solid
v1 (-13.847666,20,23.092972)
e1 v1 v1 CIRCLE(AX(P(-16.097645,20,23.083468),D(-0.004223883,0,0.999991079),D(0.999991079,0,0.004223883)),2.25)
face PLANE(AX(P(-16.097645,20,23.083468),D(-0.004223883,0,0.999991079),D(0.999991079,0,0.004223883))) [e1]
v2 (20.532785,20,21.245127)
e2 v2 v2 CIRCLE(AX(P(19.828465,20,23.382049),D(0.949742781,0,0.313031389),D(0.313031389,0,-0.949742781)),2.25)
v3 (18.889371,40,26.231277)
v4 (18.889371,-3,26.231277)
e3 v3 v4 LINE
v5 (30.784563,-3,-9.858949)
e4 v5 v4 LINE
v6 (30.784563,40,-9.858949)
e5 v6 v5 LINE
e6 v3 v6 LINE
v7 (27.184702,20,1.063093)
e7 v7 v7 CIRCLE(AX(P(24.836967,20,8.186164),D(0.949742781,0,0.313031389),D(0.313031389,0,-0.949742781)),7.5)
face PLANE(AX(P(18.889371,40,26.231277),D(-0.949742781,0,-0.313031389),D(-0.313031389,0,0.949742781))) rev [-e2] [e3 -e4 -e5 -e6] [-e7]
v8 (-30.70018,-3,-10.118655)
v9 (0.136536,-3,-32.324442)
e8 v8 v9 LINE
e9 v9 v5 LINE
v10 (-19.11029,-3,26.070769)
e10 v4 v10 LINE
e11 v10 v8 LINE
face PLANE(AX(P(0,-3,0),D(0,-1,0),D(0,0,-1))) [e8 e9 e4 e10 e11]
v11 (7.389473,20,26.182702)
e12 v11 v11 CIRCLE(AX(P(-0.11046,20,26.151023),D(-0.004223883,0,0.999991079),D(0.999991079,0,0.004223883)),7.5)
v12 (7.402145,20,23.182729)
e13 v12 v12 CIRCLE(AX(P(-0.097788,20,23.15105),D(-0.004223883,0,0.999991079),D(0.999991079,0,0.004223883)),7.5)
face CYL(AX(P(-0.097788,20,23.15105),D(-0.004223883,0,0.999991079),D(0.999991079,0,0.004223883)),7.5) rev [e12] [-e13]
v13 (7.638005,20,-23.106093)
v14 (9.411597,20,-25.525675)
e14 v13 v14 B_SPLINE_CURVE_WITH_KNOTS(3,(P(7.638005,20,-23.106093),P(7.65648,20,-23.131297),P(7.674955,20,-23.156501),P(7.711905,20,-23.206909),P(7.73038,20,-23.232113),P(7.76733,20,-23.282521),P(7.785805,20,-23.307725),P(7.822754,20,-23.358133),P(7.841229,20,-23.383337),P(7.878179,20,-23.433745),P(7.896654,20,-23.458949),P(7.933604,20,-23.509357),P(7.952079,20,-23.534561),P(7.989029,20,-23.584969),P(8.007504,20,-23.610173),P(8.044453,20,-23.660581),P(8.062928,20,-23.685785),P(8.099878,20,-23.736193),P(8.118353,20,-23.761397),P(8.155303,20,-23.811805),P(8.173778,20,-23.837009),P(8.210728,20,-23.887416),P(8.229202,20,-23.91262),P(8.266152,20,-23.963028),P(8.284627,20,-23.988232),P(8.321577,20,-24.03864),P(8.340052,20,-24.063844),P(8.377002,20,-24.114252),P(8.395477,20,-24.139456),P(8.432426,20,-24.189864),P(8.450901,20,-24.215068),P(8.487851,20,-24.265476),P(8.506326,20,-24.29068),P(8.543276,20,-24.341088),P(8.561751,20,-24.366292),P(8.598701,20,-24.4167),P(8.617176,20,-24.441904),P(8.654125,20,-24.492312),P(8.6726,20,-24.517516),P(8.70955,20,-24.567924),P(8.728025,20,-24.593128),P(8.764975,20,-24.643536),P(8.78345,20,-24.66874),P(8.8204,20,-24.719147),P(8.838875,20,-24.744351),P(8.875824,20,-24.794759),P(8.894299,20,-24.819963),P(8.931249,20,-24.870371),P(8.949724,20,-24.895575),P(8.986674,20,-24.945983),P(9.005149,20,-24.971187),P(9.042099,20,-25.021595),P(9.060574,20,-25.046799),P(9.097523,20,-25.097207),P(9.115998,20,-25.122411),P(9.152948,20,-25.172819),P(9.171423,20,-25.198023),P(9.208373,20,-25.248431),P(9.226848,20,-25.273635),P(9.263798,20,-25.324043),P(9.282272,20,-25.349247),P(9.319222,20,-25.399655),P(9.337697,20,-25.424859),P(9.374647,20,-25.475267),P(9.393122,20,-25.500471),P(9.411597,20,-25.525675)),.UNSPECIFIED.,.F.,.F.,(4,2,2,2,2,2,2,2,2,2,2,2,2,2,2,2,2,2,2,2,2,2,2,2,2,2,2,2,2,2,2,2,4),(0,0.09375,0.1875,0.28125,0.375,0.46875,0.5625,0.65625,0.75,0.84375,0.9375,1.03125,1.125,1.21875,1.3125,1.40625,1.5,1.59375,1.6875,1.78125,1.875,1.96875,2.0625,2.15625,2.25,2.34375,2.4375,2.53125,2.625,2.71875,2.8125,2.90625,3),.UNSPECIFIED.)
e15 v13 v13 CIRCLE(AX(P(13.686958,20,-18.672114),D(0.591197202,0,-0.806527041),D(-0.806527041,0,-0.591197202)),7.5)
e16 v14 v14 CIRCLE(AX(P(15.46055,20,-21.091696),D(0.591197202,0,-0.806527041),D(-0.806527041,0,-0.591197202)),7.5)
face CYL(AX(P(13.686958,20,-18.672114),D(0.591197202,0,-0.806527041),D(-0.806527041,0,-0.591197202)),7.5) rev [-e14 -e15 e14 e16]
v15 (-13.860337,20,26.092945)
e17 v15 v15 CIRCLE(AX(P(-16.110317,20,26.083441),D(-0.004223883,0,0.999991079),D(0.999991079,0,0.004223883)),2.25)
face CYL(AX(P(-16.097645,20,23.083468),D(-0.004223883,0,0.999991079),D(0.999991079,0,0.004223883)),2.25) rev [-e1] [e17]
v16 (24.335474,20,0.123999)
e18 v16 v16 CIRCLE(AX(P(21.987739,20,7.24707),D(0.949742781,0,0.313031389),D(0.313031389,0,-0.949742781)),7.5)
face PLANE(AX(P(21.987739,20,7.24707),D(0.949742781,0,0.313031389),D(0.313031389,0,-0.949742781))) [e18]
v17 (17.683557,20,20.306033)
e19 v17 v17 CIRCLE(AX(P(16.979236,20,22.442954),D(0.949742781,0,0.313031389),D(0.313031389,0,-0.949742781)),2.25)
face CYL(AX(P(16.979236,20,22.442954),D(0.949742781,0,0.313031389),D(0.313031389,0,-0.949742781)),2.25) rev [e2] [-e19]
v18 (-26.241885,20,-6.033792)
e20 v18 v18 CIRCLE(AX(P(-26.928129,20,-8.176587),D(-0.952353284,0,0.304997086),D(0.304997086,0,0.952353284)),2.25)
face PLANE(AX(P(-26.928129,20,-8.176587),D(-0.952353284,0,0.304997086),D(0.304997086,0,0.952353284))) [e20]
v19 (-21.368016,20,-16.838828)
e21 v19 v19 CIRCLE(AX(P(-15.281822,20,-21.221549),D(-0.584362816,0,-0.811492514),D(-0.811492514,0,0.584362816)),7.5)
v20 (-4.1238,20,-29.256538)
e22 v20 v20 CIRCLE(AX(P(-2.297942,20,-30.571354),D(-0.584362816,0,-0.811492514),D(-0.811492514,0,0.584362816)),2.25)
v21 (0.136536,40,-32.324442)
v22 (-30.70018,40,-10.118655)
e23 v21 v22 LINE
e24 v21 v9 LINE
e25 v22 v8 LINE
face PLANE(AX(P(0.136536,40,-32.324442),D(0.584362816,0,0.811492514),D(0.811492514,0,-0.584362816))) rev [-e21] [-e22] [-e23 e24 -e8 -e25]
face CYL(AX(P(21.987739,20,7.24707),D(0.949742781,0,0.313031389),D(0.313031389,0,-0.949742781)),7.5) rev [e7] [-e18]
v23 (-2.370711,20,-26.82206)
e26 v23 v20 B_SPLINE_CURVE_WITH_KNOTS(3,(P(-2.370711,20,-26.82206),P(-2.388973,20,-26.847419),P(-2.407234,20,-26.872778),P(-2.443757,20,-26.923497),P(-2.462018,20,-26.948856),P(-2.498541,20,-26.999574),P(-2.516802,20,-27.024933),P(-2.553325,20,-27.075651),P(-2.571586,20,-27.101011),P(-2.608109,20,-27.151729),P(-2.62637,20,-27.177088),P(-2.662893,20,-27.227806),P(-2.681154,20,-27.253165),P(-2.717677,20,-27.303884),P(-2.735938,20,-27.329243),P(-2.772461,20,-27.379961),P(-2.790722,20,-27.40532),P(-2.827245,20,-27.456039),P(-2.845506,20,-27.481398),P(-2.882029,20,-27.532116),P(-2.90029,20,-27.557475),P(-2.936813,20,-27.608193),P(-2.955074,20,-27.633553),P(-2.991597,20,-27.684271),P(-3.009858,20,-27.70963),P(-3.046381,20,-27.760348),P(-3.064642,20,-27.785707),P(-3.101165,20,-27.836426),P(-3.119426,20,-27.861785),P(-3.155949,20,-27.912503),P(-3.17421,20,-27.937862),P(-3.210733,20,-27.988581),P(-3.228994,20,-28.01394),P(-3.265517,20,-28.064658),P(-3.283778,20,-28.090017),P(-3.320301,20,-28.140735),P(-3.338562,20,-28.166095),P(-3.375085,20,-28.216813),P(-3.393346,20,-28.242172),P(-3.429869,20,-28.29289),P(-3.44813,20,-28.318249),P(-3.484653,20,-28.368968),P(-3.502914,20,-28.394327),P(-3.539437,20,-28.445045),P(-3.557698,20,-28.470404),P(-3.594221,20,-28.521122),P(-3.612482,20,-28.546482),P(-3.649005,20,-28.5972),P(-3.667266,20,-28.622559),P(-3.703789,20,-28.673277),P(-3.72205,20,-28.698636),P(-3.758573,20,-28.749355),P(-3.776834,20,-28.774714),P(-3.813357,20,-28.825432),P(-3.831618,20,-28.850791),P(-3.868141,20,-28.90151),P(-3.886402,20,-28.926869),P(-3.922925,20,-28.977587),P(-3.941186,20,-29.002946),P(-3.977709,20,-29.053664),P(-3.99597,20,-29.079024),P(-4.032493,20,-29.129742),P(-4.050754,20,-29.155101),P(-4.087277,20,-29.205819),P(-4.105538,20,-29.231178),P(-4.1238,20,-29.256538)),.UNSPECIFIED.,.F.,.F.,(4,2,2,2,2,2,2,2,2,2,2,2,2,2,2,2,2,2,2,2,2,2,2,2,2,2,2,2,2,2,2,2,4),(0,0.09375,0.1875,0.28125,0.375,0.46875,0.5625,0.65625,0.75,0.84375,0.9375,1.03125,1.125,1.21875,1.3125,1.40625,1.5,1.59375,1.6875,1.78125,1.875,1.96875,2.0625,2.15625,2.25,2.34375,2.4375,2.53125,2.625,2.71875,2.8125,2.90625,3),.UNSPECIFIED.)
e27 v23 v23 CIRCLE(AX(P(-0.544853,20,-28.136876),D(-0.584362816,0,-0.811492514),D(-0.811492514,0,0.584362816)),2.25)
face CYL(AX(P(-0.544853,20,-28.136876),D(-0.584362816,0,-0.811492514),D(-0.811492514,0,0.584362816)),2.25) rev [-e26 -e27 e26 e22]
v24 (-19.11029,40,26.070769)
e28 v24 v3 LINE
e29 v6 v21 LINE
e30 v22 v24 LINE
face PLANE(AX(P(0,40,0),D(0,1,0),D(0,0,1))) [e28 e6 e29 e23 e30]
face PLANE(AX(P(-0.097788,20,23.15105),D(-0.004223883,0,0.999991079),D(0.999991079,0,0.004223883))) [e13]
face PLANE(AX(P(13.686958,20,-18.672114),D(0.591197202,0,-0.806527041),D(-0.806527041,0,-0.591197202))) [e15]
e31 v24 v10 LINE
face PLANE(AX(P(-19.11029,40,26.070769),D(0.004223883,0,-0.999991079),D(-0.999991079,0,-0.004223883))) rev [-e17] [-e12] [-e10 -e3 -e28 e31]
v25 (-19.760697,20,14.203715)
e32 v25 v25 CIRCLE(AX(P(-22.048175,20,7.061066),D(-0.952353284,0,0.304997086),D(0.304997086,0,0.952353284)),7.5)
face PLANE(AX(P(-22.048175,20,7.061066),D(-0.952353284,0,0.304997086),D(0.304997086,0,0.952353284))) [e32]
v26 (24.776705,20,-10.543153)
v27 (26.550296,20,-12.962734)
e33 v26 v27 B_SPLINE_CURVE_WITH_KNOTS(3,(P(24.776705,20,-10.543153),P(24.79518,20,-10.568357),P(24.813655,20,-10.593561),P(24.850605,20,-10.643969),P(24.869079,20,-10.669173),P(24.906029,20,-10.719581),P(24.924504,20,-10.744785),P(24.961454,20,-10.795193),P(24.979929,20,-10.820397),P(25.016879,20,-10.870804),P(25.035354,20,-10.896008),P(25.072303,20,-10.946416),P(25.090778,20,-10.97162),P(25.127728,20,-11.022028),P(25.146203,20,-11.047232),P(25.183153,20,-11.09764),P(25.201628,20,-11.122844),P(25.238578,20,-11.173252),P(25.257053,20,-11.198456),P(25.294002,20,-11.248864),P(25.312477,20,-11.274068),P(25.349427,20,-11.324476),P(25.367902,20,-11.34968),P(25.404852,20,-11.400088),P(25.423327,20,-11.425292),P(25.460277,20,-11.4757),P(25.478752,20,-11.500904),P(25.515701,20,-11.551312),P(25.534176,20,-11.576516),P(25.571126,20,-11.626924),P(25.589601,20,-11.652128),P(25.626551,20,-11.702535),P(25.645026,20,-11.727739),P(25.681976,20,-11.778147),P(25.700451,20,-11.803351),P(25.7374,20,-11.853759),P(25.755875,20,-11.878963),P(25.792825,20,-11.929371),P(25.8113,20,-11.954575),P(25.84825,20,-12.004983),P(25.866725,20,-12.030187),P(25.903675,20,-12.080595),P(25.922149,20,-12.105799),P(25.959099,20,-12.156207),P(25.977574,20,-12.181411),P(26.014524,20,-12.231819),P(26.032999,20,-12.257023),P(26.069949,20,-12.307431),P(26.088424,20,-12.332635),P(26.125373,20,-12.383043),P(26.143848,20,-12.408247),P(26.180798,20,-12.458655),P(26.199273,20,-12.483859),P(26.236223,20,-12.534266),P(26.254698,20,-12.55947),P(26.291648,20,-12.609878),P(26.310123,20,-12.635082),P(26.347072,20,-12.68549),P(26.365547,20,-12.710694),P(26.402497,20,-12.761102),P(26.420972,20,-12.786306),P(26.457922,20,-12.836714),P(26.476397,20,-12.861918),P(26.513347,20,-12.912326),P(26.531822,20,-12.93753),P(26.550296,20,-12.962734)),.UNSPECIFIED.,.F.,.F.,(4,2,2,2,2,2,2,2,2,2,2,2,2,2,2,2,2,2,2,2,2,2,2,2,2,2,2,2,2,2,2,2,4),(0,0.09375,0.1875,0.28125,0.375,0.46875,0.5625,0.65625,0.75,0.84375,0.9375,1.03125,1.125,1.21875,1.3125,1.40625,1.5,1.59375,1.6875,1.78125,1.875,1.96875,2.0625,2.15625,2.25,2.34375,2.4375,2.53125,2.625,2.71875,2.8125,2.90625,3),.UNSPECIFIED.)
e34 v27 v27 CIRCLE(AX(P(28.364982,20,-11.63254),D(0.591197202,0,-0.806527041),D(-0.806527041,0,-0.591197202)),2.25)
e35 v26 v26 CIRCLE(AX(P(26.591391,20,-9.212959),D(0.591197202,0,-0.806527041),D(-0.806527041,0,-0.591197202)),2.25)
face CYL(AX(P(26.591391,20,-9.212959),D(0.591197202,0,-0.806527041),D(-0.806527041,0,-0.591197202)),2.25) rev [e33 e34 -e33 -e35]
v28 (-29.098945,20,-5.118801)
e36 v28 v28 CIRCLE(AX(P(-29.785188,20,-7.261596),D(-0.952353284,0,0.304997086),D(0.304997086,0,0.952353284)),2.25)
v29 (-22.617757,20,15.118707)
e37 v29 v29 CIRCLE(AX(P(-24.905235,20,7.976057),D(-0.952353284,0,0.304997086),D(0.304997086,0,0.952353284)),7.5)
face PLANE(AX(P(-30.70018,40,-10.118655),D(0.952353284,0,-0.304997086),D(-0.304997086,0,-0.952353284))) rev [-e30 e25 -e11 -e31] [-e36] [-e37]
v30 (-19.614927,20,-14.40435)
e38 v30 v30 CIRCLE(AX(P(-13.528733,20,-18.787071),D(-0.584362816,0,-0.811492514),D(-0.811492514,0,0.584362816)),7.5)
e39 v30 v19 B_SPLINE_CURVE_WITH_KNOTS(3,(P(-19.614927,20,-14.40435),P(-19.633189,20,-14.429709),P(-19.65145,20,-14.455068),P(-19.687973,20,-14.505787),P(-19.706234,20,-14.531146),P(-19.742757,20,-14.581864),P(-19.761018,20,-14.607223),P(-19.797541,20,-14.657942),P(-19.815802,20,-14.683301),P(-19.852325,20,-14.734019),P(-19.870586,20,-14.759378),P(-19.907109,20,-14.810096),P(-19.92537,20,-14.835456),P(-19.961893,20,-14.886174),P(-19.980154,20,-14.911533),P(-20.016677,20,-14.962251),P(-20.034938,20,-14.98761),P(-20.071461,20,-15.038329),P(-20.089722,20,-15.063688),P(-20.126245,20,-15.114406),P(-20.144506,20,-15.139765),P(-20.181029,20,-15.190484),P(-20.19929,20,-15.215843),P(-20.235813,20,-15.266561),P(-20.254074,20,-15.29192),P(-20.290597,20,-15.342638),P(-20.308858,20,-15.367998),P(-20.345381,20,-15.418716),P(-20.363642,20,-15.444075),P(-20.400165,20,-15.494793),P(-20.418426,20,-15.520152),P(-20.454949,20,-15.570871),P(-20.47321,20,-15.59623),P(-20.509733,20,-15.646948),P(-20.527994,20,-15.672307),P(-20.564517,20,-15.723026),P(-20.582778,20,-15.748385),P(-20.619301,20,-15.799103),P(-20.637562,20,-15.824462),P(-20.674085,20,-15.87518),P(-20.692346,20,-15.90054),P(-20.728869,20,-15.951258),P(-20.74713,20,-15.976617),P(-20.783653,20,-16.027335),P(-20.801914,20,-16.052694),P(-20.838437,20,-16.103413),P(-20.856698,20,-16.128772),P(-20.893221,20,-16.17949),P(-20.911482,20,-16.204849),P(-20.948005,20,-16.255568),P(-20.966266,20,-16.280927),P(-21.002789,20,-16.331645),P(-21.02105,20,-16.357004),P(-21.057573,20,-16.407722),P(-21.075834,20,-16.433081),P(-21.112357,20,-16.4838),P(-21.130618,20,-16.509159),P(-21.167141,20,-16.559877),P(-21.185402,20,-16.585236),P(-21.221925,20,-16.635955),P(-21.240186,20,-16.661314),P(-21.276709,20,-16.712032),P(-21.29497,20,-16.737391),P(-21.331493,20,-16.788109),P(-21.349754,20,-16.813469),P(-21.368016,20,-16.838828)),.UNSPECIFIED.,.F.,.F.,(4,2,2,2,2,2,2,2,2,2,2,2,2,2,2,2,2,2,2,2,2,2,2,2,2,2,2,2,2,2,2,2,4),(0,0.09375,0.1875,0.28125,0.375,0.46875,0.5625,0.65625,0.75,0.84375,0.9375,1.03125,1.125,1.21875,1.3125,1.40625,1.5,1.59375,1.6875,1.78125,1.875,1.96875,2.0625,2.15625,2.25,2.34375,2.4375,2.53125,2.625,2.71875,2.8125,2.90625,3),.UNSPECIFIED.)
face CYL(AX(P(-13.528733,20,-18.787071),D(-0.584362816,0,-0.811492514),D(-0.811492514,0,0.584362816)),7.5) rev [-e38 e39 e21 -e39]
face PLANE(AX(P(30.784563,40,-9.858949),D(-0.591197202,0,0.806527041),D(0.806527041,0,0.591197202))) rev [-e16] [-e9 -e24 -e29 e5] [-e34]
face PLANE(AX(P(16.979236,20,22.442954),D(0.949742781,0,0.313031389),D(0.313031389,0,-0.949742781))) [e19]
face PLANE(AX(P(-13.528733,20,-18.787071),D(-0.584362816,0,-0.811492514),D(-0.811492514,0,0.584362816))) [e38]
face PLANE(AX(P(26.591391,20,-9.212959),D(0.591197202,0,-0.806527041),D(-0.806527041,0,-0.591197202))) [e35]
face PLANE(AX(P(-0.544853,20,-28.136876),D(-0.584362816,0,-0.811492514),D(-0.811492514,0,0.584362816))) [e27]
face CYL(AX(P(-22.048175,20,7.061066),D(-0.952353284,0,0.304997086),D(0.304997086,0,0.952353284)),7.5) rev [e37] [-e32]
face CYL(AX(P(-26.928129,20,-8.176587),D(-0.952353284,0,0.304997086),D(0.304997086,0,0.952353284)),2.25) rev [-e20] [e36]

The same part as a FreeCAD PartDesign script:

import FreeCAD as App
import Part
import Sketcher
from FreeCAD import Vector
Q = App.Units.Quantity


def add_polygon(sketch, points):
    """Adds a closed chain of lines whose ends are joined by coincident constraints."""
    first, n = sketch.GeometryCount, len(points)
    for a, b in zip(points, points[1:] + points[:1]):
        sketch.addGeometry(Part.LineSegment(App.Vector(*a, 0), App.Vector(*b, 0)), False)
    for i in range(n):
        sketch.addConstraint(Sketcher.Constraint("Coincident", first + i, 2, first + (i + 1) % n, 1))

doc = App.newDocument("Part")
body = doc.addObject("PartDesign::Body", "Body")

# Sketch on XZ plane
sketch1 = body.newObject("Sketcher::SketchObject", "Sketch")
sketch1.AttachmentSupport = (doc.getObject("XZ_Plane"), [""])
sketch1.MapMode = "FlatFace"
add_polygon(sketch1, [(19, 26), (31, -10), (0, -32), (-31, -10), (-19, 26)])  # lines 0-4
sketch1.addConstraint(Sketcher.Constraint("Equal", 0, 1))
sketch1.addConstraint(Sketcher.Constraint("Equal", 1, 2))
sketch1.addConstraint(Sketcher.Constraint("Equal", 2, 3))
sketch1.addConstraint(Sketcher.Constraint("Equal", 3, 4))
sketch1.addConstraint(Sketcher.Constraint("Distance", 0, Q("38 mm")))
sketch1.addConstraint(Sketcher.Constraint("DistanceY", 0, 2, -1, 1, Q("9.858949 mm")))
sketch1.addConstraint(Sketcher.Constraint("DistanceX", 2, 2, -1, 1, Q("30.70018 mm")))
sketch1.addConstraint(Sketcher.Constraint("DistanceX", 3, 2, -1, 1, Q("19.11029 mm")))
sketch1.addConstraint(Sketcher.Constraint("DistanceY", -1, 1, 3, 2, Q("26.070769 mm")))
sketch1.addConstraint(Sketcher.Constraint("DistanceY", 1, 2, 3, 2, Q("58.395212 mm")))
pad1 = body.newObject("PartDesign::Pad", "Pad")
pad1.Profile = sketch1
pad1.Length = 40
pad1.Reversed = True

# Sketch on an angled plane
sketch2 = body.newObject("Sketcher::SketchObject", "Sketch001")
sketch2.Placement = App.Placement(Vector(-0.11046, 0, 26.151023), App.Rotation(Vector(0.999991079, 0, 0.004223883), Vector(0, 0.999999999, 0), Vector(-0.004223883, 0, 0.999991079), "ZXY"))
sketch2.addGeometry(Part.Circle(Vector(0, 20, 0), Vector(0, 0, 1), 7.5), False)
sketch2.addGeometry(Part.Circle(Vector(-16, 20, 0), Vector(0, 0, 1), 2.2), False)
sketch2.addConstraint(Sketcher.Constraint("PointOnObject", 0, 3, -2))
sketch2.addConstraint(Sketcher.Constraint("Horizontal", 0, 3, 1, 3))
sketch2.addConstraint(Sketcher.Constraint("Diameter", 0, Q("15 mm")))
sketch2.addConstraint(Sketcher.Constraint("Diameter", 1, Q("4.5 mm")))
sketch2.addConstraint(Sketcher.Constraint("DistanceY", -1, 1, 0, 3, Q("20 mm")))
sketch2.addConstraint(Sketcher.Constraint("DistanceX", 1, 3, -1, 1, Q("16 mm")))
pocket1 = body.newObject("PartDesign::Pocket", "Pocket")
pocket1.Profile = sketch2
pocket1.Length = 3

# Sketch on an angled plane
sketch3 = body.newObject("Sketcher::SketchObject", "Sketch002")
sketch3.Placement = App.Placement(Vector(24.836967, 0, 8.186164), App.Rotation(Vector(0.313031389, 0, -0.949742781), Vector(0, 1.000000001, 0), Vector(0.949742781, 0, 0.313031389), "ZXY"))
sketch3.addGeometry(Part.Circle(Vector(0, 20, 0), Vector(0, 0, 1), 7.5), False)
sketch3.addGeometry(Part.Circle(Vector(-16, 20, 0), Vector(0, 0, 1), 2.2), False)
sketch3.addConstraint(Sketcher.Constraint("PointOnObject", 0, 3, -2))
sketch3.addConstraint(Sketcher.Constraint("Horizontal", 0, 3, 1, 3))
sketch3.addConstraint(Sketcher.Constraint("Diameter", 0, Q("15 mm")))
sketch3.addConstraint(Sketcher.Constraint("Diameter", 1, Q("4.5 mm")))
sketch3.addConstraint(Sketcher.Constraint("DistanceY", -1, 1, 0, 3, Q("20 mm")))
sketch3.addConstraint(Sketcher.Constraint("DistanceX", 1, 3, -1, 1, Q("16 mm")))
pocket2 = body.newObject("PartDesign::Pocket", "Pocket001")
pocket2.Profile = sketch3
pocket2.Length = 3

# Sketch on an angled plane
sketch4 = body.newObject("Sketcher::SketchObject", "Sketch003")
sketch4.Placement = App.Placement(Vector(15.46055, 0, -21.091696), App.Rotation(Vector(-0.806527041, 0, -0.591197202), Vector(0, 1, 0), Vector(0.591197202, 0, -0.806527041), "ZXY"))
sketch4.addGeometry(Part.Circle(Vector(0, 20, 0), Vector(0, 0, 1), 7.5), False)
sketch4.addGeometry(Part.Circle(Vector(-16, 20, 0), Vector(0, 0, 1), 2.2), False)
sketch4.addConstraint(Sketcher.Constraint("PointOnObject", 0, 3, -2))
sketch4.addConstraint(Sketcher.Constraint("Horizontal", 0, 3, 1, 3))
sketch4.addConstraint(Sketcher.Constraint("Diameter", 0, Q("15 mm")))
sketch4.addConstraint(Sketcher.Constraint("Diameter", 1, Q("4.5 mm")))
sketch4.addConstraint(Sketcher.Constraint("DistanceY", -1, 1, 0, 3, Q("20 mm")))
sketch4.addConstraint(Sketcher.Constraint("DistanceX", 1, 3, -1, 1, Q("16 mm")))
pocket3 = body.newObject("PartDesign::Pocket", "Pocket002")
pocket3.Profile = sketch4
pocket3.Length = 3

# Sketch on an angled plane
sketch5 = body.newObject("Sketcher::SketchObject", "Sketch004")
sketch5.Placement = App.Placement(Vector(-15.281822, 0, -21.221549), App.Rotation(Vector(-0.811492514, 0, 0.584362816), Vector(0, 1.000000001, 0), Vector(-0.584362816, 0, -0.811492514), "ZXY"))
sketch5.addGeometry(Part.Circle(Vector(0, 20, 0), Vector(0, 0, 1), 7.5), False)
sketch5.addGeometry(Part.Circle(Vector(-16, 20, 0), Vector(0, 0, 1), 2.2), False)
sketch5.addConstraint(Sketcher.Constraint("PointOnObject", 0, 3, -2))
sketch5.addConstraint(Sketcher.Constraint("Horizontal", 0, 3, 1, 3))
sketch5.addConstraint(Sketcher.Constraint("Diameter", 0, Q("15 mm")))
sketch5.addConstraint(Sketcher.Constraint("Diameter", 1, Q("4.5 mm")))
sketch5.addConstraint(Sketcher.Constraint("DistanceY", -1, 1, 0, 3, Q("20 mm")))
sketch5.addConstraint(Sketcher.Constraint("DistanceX", 1, 3, -1, 1, Q("16 mm")))
pocket4 = body.newObject("PartDesign::Pocket", "Pocket003")
pocket4.Profile = sketch5
pocket4.Length = 3

# Sketch on an angled plane
sketch6 = body.newObject("Sketcher::SketchObject", "Sketch005")
sketch6.Placement = App.Placement(Vector(-24.905235, 0, 7.976057), App.Rotation(Vector(0.304997086, 0, 0.952353284), Vector(0, 1, 0), Vector(-0.952353284, 0, 0.304997086), "ZXY"))
sketch6.addGeometry(Part.Circle(Vector(0, 20, 0), Vector(0, 0, 1), 7.5), False)
sketch6.addGeometry(Part.Circle(Vector(-16, 20, 0), Vector(0, 0, 1), 2.2), False)
sketch6.addConstraint(Sketcher.Constraint("PointOnObject", 0, 3, -2))
sketch6.addConstraint(Sketcher.Constraint("Horizontal", 0, 3, 1, 3))
sketch6.addConstraint(Sketcher.Constraint("Diameter", 0, Q("15 mm")))
sketch6.addConstraint(Sketcher.Constraint("Diameter", 1, Q("4.5 mm")))
sketch6.addConstraint(Sketcher.Constraint("DistanceY", -1, 1, 0, 3, Q("20 mm")))
sketch6.addConstraint(Sketcher.Constraint("DistanceX", 1, 3, -1, 1, Q("16 mm")))
pocket5 = body.newObject("PartDesign::Pocket", "Pocket004")
pocket5.Profile = sketch6
pocket5.Length = 3

# Sketch on XZ plane
sketch7 = body.newObject("Sketcher::SketchObject", "Sketch006")
sketch7.AttachmentSupport = (doc.getObject("XZ_Plane"), [""])
sketch7.MapMode = "FlatFace"
add_polygon(sketch7, [(30.784563, -9.858949), (18.889371, 26.231277), (-19.11029, 26.070769), (-30.70018, -10.118655), (0.136536, -32.324442)])  # lines 0-4
sketch7.addConstraint(Sketcher.Constraint("Equal", 0, 1))
sketch7.addConstraint(Sketcher.Constraint("Equal", 1, 2))
sketch7.addConstraint(Sketcher.Constraint("Equal", 2, 3))
sketch7.addConstraint(Sketcher.Constraint("Equal", 3, 4))
sketch7.addConstraint(Sketcher.Constraint("Distance", 0, Q("38 mm")))
sketch7.addConstraint(Sketcher.Constraint("DistanceX", -1, 1, 0, 2, Q("18.889371 mm")))
sketch7.addConstraint(Sketcher.Constraint("DistanceX", 1, 2, -1, 1, Q("19.11029 mm")))
sketch7.addConstraint(Sketcher.Constraint("DistanceY", -1, 1, 1, 2, Q("26.070769 mm")))
sketch7.addConstraint(Sketcher.Constraint("DistanceX", 2, 2, -1, 1, Q("30.70018 mm")))
sketch7.addConstraint(Sketcher.Constraint("DistanceY", 4, 2, -1, 1, Q("9.858949 mm")))
pad2 = body.newObject("PartDesign::Pad", "Pad001")
pad2.Profile = sketch7
pad2.Length = 3

doc.recompute()
